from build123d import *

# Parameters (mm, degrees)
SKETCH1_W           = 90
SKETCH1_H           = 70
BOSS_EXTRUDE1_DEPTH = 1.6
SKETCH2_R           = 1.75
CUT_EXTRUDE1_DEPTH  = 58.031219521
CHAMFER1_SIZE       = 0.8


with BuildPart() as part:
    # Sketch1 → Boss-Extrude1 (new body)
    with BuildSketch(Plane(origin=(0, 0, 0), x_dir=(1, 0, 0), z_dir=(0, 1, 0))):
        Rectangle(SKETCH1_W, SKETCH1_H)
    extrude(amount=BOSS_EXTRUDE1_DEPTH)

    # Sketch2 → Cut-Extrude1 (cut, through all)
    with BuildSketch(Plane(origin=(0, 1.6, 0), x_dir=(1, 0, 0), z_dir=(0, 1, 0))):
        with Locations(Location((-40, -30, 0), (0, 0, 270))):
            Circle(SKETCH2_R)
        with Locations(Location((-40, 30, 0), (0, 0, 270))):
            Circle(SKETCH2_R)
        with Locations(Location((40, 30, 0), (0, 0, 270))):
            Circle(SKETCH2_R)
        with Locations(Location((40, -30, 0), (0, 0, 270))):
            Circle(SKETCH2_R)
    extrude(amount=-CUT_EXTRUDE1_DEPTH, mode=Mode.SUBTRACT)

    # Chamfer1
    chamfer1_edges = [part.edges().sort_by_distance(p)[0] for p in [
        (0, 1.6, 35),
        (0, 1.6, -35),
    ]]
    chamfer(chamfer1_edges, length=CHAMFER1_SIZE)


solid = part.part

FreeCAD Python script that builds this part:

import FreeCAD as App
import Part
import Sketcher
Q = App.Units.Quantity


def edges_at(feature, points):
    """Names of the edges that pass closest to the given points."""
    edges = feature.Shape.Edges
    near = lambda p: min(range(len(edges)), key=lambda i: edges[i].distToShape(Part.Vertex(*p))[0])
    return sorted({f"Edge{near(p) + 1}" for p in points})


def add_polygon(sketch, points):
    """Adds a closed chain of lines whose ends are joined by coincident constraints."""
    first, n = sketch.GeometryCount, len(points)
    for a, b in zip(points, points[1:] + points[:1]):
        sketch.addGeometry(Part.LineSegment(App.Vector(*a, 0), App.Vector(*b, 0)), False)
    for i in range(n):
        sketch.addConstraint(Sketcher.Constraint("Coincident", first + i, 2, first + (i + 1) % n, 1))

doc = App.newDocument("Part")
body = doc.addObject("PartDesign::Body", "Body")

# Sketch on XZ plane
sketch1 = body.newObject("Sketcher::SketchObject", "Sketch")
sketch1.AttachmentSupport = (doc.getObject("XZ_Plane"), [""])
sketch1.MapMode = "FlatFace"
add_polygon(sketch1, [(-45, -35), (-45, 35), (45, 35), (45, -35)])  # lines 0-3
sketch1.addConstraint([
    Sketcher.Constraint("Vertical", 0),
    Sketcher.Constraint("Horizontal", 1),
    Sketcher.Constraint("Vertical", 2),
    Sketcher.Constraint("Horizontal", 3),
    Sketcher.Constraint("Symmetric", 0, 2, 2, 2, -1, 1),
    Sketcher.Constraint("DistanceX", 1, 1, 1, 2, Q("90 mm")),
    Sketcher.Constraint("DistanceY", 0, 1, 0, 2, Q("70 mm")),
])
pad1 = body.newObject("PartDesign::Pad", "Pad")
pad1.Profile = sketch1
pad1.Length = 1.6
pad1.Reversed = True

# Sketch on XZ plane
sketch2 = body.newObject("Sketcher::SketchObject", "Sketch001")
sketch2.AttachmentSupport = (doc.getObject("XZ_Plane"), [""])
sketch2.MapMode = "FlatFace"
sketch2.AttachmentOffset = App.Placement(App.Vector(0, 0, -1.6), App.Rotation())
sketch2.addGeometry([
    Part.Circle(App.Vector(-40, 30, 0), App.Vector(0, 0, 1), 1.8),
    Part.Circle(App.Vector(-40, -30, 0), App.Vector(0, 0, 1), 1.8),
    Part.Circle(App.Vector(40, -30, 0), App.Vector(0, 0, 1), 1.8),
    Part.Circle(App.Vector(40, 30, 0), App.Vector(0, 0, 1), 1.8),
], False)
sketch2.addConstraint([
    Sketcher.Constraint("Equal", 0, 1),
    Sketcher.Constraint("Equal", 1, 2),
    Sketcher.Constraint("Equal", 2, 3),
    Sketcher.Constraint("Symmetric", 0, 3, 2, 3, -1, 1),
    Sketcher.Constraint("Symmetric", 1, 3, 3, 3, -1, 1),
    Sketcher.Constraint("Symmetric", 1, 3, 2, 3, -2),
    Sketcher.Constraint("Diameter", 0, Q("3.5 mm")),
    Sketcher.Constraint("DistanceX", 0, 3, -1, 1, Q("40 mm")),
    Sketcher.Constraint("DistanceY", -1, 1, 0, 3, Q("30 mm")),
])
pocket1 = body.newObject("PartDesign::Pocket", "Pocket")
pocket1.Profile = sketch2
pocket1.Type = "ThroughAll"
pocket1.Reversed = True
doc.recompute()

chamfer = body.newObject("PartDesign::Chamfer", "Chamfer")
chamfer.Base = (pocket1, edges_at(pocket1, [(0, 1.6, 35), (0, 1.6, -35)]))
chamfer.Size = 0.8

doc.recompute()
